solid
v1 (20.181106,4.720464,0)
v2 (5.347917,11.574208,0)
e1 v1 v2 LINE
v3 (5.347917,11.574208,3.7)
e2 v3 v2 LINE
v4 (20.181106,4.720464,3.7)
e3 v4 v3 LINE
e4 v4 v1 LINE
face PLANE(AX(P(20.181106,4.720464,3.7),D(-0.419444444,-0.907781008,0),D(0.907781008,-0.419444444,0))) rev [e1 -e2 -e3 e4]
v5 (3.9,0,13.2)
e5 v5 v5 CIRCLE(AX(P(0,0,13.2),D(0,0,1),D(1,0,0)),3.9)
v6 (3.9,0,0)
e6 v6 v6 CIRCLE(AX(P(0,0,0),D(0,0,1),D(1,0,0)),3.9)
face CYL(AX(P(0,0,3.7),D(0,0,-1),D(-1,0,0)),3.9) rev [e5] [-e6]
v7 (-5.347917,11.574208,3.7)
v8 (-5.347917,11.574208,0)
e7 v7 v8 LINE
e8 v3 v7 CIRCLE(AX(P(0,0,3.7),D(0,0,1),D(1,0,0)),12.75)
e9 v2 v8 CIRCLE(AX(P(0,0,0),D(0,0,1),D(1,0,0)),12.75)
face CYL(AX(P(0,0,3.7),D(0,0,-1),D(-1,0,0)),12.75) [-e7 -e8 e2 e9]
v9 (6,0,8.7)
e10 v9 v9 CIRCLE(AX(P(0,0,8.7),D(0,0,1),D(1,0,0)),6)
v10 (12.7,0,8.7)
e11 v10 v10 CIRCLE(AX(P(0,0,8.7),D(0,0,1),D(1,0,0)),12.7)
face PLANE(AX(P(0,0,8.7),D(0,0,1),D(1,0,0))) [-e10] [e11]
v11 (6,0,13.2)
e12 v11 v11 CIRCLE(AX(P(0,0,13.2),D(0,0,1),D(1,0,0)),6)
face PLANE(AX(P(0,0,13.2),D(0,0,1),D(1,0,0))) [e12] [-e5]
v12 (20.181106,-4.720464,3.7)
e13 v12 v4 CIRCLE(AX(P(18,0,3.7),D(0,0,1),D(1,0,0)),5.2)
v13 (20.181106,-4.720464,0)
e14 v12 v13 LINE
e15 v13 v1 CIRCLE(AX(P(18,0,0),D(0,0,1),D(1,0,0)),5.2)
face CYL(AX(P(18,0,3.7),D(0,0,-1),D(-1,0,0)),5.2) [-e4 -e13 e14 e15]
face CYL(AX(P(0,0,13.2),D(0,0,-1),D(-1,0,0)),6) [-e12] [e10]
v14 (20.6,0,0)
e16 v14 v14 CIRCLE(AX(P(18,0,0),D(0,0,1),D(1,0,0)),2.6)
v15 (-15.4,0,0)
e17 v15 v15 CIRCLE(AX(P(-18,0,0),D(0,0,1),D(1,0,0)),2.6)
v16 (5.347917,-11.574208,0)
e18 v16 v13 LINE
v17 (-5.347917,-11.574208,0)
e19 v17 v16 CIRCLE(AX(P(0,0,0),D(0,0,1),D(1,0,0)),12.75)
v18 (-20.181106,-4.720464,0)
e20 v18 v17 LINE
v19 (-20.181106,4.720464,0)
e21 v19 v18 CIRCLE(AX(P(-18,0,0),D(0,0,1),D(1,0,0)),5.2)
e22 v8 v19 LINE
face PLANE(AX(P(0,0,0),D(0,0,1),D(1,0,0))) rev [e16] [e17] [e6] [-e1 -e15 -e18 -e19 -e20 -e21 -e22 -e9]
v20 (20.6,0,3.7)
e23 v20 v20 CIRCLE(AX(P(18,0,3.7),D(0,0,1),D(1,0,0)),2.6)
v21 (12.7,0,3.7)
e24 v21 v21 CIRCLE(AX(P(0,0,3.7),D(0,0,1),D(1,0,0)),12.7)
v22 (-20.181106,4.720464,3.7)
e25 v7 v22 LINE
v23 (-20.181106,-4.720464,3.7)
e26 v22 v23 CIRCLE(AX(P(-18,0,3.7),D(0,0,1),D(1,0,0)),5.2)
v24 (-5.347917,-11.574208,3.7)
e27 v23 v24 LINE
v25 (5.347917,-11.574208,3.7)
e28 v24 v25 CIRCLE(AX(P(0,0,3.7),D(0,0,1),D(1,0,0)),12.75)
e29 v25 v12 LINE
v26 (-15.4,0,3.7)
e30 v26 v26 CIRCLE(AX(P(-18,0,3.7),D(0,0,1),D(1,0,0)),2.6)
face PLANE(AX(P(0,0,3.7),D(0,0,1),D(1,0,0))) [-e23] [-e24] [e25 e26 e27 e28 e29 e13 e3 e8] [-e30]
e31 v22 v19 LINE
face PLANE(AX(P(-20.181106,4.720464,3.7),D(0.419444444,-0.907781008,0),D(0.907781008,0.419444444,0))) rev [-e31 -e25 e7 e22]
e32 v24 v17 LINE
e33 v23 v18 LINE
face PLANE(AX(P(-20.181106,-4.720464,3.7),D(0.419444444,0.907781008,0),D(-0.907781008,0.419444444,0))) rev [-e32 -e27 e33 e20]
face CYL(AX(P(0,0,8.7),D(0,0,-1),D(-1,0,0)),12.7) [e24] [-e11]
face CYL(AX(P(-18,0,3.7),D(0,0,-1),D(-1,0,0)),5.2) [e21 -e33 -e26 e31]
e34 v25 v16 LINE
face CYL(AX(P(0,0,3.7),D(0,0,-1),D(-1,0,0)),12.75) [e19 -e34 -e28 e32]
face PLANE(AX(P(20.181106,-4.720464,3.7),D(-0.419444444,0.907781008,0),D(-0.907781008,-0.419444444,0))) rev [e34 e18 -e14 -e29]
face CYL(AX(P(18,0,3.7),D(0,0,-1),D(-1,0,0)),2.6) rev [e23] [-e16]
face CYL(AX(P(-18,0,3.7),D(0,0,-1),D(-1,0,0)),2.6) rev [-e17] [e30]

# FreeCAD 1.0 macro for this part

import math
import FreeCAD as App
import Part
import Sketcher

doc = App.newDocument("Part")
params = doc.addObject("Spreadsheet::Sheet", "Params")
for row, (alias, value) in enumerate([
    ("sketch1_diameter", "5.2 mm"),
    ("sketch1_diameter2", "7.8 mm"),
    ("sketch1_radius", "5.2 mm"),
    ("sketch1_radius2", "12.75 mm"),
    ("pad1_length", "3.7 mm"),
    ("sketch2_diameter", "25.4 mm"),
    ("sketch2_diameter2", "7.8 mm"),
    ("pad2_length", "5 mm"),
    ("sketch3_diameter", "12 mm"),
    ("sketch3_diameter2", "7.8 mm"),
    ("pad3_length", "4.5 mm"),
], start=1):
    params.set(f"A{row}", alias)
    params.set(f"B{row}", "=" + value)
    params.setAlias(f"B{row}", alias)

body = doc.addObject("PartDesign::Body", "Body")

# Sketch on XY plane
sketch1 = doc.addObject("Sketcher::SketchObject", "Sketch")
body.addObject(sketch1)
sketch1.AttachmentSupport = (doc.XY_Plane, [""])
sketch1.MapMode = "FlatFace"
sketch1.addGeometry([
    Part.LineSegment(App.Vector(-5.347917, 11.574208, 0), App.Vector(-20.181106, 4.720464, 0)),  # 0
    Part.ArcOfCircle(Part.Circle(App.Vector(-18, 0, 0), App.Vector(0, 0, 1), 5.2), math.radians(114.799458), math.radians(245.200542)),  # 1
    Part.LineSegment(App.Vector(-20.181106, -4.720464, 0), App.Vector(-5.347917, -11.574208, 0)),  # 2
    Part.ArcOfCircle(Part.Circle(App.Vector(0, 0, 0), App.Vector(0, 0, 1), 12.75), math.radians(-114.799518), math.radians(-65.200482)),  # 3
    Part.LineSegment(App.Vector(5.347917, -11.574208, 0), App.Vector(20.181106, -4.720464, 0)),  # 4
    Part.ArcOfCircle(Part.Circle(App.Vector(18, 0, 0), App.Vector(0, 0, 1), 5.2), math.radians(-65.200542), math.radians(65.200542)),  # 5
    Part.LineSegment(App.Vector(20.181106, 4.720464, 0), App.Vector(5.347917, 11.574208, 0)),  # 6
    Part.ArcOfCircle(Part.Circle(App.Vector(0, 0, 0), App.Vector(0, 0, 1), 12.75), math.radians(65.200482), math.radians(114.799518)),  # 7
    Part.Circle(App.Vector(18, 0, 0), App.Vector(0, 0, 1), 2.6),  # 8
    Part.Circle(App.Vector(0, 0, 0), App.Vector(0, 0, 1), 3.9),  # 9
    Part.Circle(App.Vector(-18, 0, 0), App.Vector(0, 0, 1), 2.6),  # 10
], False)
sketch1.addConstraint([
    Sketcher.Constraint("Tangent", 0, 2, 1, 1),
    Sketcher.Constraint("Tangent", 1, 2, 2, 1),
    Sketcher.Constraint("Tangent", 2, 2, 3, 1),
    Sketcher.Constraint("Tangent", 3, 2, 4, 1),
    Sketcher.Constraint("Tangent", 4, 2, 5, 1),
    Sketcher.Constraint("Tangent", 5, 2, 6, 1),
    Sketcher.Constraint("Tangent", 6, 2, 7, 1),
    Sketcher.Constraint("Tangent", 7, 2, 0, 1),
    Sketcher.Constraint("Coincident", 3, 3, -1, 1),
    Sketcher.Constraint("Coincident", 7, 3, -1, 1),
    Sketcher.Constraint("Coincident", 9, 3, -1, 1),
    Sketcher.Constraint("Coincident", 8, 3, 5, 3),
    Sketcher.Constraint("Coincident", 10, 3, 1, 3),
    Sketcher.Constraint("Equal", 1, 5),
    Sketcher.Constraint("Equal", 3, 7),
    Sketcher.Constraint("Equal", 8, 10),
    Sketcher.Constraint("Symmetric", 1, 3, 5, 3, -1, 1),
    Sketcher.Constraint("PointOnObject", 1, 3, -1),
    Sketcher.Constraint("Diameter", 8, 5.2),
    Sketcher.Constraint("Diameter", 9, 7.8),
    Sketcher.Constraint("Radius", 1, 5.2),
    Sketcher.Constraint("Radius", 3, 12.75),
    Sketcher.Constraint("DistanceX", 1, 3, -1, 1, 18.0),
])
sketch1.setExpression("Constraints[18]", "Params.sketch1_diameter")
sketch1.setExpression("Constraints[19]", "Params.sketch1_diameter2")
sketch1.setExpression("Constraints[20]", "Params.sketch1_radius")
sketch1.setExpression("Constraints[21]", "Params.sketch1_radius2")
pad1 = doc.addObject("PartDesign::Pad", "Pad")
body.addObject(pad1)
pad1.Profile = sketch1
pad1.setExpression("Length", "Params.pad1_length")

# Sketch on XY plane
sketch2 = doc.addObject("Sketcher::SketchObject", "Sketch001")
body.addObject(sketch2)
sketch2.AttachmentSupport = (doc.XY_Plane, [""])
sketch2.MapMode = "FlatFace"
sketch2.AttachmentOffset = App.Placement(App.Vector(0, 0, 3.7), App.Rotation())
sketch2.addGeometry([
    Part.Circle(App.Vector(0, 0, 0), App.Vector(0, 0, 1), 12.7),
    Part.Circle(App.Vector(0, 0, 0), App.Vector(0, 0, 1), 3.9),
], False)
sketch2.addConstraint([
    Sketcher.Constraint("Coincident", 0, 3, -1, 1),
    Sketcher.Constraint("Coincident", 1, 3, -1, 1),
    Sketcher.Constraint("Diameter", 0, 25.4),
    Sketcher.Constraint("Diameter", 1, 7.8),
])
sketch2.setExpression("Constraints[2]", "Params.sketch2_diameter")
sketch2.setExpression("Constraints[3]", "Params.sketch2_diameter2")
pad2 = doc.addObject("PartDesign::Pad", "Pad001")
body.addObject(pad2)
pad2.Profile = sketch2
pad2.setExpression("Length", "Params.pad2_length")

# Sketch on XY plane
sketch3 = doc.addObject("Sketcher::SketchObject", "Sketch002")
body.addObject(sketch3)
sketch3.AttachmentSupport = (doc.XY_Plane, [""])
sketch3.MapMode = "FlatFace"
sketch3.AttachmentOffset = App.Placement(App.Vector(0, 0, 8.7), App.Rotation())
sketch3.addGeometry([
    Part.Circle(App.Vector(0, 0, 0), App.Vector(0, 0, 1), 6),
    Part.Circle(App.Vector(0, 0, 0), App.Vector(0, 0, 1), 3.9),
], False)
sketch3.addConstraint([
    Sketcher.Constraint("Coincident", 0, 3, -1, 1),
    Sketcher.Constraint("Coincident", 1, 3, -1, 1),
    Sketcher.Constraint("Diameter", 0, 12.0),
    Sketcher.Constraint("Diameter", 1, 7.8),
])
sketch3.setExpression("Constraints[2]", "Params.sketch3_diameter")
sketch3.setExpression("Constraints[3]", "Params.sketch3_diameter2")
pad3 = doc.addObject("PartDesign::Pad", "Pad002")
body.addObject(pad3)
pad3.Profile = sketch3
pad3.setExpression("Length", "Params.pad3_length")

doc.recompute()
